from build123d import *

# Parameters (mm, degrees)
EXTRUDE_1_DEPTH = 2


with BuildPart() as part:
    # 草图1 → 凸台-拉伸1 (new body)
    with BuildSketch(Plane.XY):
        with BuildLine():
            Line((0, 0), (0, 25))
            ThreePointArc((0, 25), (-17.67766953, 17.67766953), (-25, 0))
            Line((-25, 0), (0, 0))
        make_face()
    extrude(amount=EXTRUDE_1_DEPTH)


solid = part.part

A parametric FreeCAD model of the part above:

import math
import FreeCAD as App
import Part
import Sketcher

V = App.Vector
Q = App.Units.Quantity

doc = App.newDocument("Part")
body = doc.addObject("PartDesign::Body", "Body")

# Sketch on XY plane
sketch1 = doc.addObject("Sketcher::SketchObject", "Sketch")
body.addObject(sketch1)
sketch1.AttachmentSupport = (doc.XY_Plane, [""])
sketch1.MapMode = "FlatFace"
sketch1.addGeometry(Part.LineSegment(V(0, 0, 0), V(0, 25, 0)), False)
sketch1.addGeometry(Part.ArcOfCircle(Part.Circle(V(0, 0, 0), V(0, 0, 1), 25), math.radians(90), math.radians(180)), False)
sketch1.addGeometry(Part.LineSegment(V(-25, 0, 0), V(0, 0, 0)), False)
sketch1.addConstraint(Sketcher.Constraint("Coincident", 0, 2, 1, 1))
sketch1.addConstraint(Sketcher.Constraint("Coincident", 1, 2, 2, 1))
sketch1.addConstraint(Sketcher.Constraint("Coincident", 2, 2, 0, 1))
sketch1.addConstraint(Sketcher.Constraint("Vertical", 0))
sketch1.addConstraint(Sketcher.Constraint("Horizontal", 2))
sketch1.addConstraint(Sketcher.Constraint("Coincident", 1, 3, -1, 1))
sketch1.addConstraint(Sketcher.Constraint("Coincident", 2, 2, -1, 1))
sketch1.addConstraint(Sketcher.Constraint("Radius", 1, Q("25 mm")))
pad1 = doc.addObject("PartDesign::Pad", "Pad")
body.addObject(pad1)
pad1.Profile = sketch1
pad1.Length = 2

doc.recompute()
